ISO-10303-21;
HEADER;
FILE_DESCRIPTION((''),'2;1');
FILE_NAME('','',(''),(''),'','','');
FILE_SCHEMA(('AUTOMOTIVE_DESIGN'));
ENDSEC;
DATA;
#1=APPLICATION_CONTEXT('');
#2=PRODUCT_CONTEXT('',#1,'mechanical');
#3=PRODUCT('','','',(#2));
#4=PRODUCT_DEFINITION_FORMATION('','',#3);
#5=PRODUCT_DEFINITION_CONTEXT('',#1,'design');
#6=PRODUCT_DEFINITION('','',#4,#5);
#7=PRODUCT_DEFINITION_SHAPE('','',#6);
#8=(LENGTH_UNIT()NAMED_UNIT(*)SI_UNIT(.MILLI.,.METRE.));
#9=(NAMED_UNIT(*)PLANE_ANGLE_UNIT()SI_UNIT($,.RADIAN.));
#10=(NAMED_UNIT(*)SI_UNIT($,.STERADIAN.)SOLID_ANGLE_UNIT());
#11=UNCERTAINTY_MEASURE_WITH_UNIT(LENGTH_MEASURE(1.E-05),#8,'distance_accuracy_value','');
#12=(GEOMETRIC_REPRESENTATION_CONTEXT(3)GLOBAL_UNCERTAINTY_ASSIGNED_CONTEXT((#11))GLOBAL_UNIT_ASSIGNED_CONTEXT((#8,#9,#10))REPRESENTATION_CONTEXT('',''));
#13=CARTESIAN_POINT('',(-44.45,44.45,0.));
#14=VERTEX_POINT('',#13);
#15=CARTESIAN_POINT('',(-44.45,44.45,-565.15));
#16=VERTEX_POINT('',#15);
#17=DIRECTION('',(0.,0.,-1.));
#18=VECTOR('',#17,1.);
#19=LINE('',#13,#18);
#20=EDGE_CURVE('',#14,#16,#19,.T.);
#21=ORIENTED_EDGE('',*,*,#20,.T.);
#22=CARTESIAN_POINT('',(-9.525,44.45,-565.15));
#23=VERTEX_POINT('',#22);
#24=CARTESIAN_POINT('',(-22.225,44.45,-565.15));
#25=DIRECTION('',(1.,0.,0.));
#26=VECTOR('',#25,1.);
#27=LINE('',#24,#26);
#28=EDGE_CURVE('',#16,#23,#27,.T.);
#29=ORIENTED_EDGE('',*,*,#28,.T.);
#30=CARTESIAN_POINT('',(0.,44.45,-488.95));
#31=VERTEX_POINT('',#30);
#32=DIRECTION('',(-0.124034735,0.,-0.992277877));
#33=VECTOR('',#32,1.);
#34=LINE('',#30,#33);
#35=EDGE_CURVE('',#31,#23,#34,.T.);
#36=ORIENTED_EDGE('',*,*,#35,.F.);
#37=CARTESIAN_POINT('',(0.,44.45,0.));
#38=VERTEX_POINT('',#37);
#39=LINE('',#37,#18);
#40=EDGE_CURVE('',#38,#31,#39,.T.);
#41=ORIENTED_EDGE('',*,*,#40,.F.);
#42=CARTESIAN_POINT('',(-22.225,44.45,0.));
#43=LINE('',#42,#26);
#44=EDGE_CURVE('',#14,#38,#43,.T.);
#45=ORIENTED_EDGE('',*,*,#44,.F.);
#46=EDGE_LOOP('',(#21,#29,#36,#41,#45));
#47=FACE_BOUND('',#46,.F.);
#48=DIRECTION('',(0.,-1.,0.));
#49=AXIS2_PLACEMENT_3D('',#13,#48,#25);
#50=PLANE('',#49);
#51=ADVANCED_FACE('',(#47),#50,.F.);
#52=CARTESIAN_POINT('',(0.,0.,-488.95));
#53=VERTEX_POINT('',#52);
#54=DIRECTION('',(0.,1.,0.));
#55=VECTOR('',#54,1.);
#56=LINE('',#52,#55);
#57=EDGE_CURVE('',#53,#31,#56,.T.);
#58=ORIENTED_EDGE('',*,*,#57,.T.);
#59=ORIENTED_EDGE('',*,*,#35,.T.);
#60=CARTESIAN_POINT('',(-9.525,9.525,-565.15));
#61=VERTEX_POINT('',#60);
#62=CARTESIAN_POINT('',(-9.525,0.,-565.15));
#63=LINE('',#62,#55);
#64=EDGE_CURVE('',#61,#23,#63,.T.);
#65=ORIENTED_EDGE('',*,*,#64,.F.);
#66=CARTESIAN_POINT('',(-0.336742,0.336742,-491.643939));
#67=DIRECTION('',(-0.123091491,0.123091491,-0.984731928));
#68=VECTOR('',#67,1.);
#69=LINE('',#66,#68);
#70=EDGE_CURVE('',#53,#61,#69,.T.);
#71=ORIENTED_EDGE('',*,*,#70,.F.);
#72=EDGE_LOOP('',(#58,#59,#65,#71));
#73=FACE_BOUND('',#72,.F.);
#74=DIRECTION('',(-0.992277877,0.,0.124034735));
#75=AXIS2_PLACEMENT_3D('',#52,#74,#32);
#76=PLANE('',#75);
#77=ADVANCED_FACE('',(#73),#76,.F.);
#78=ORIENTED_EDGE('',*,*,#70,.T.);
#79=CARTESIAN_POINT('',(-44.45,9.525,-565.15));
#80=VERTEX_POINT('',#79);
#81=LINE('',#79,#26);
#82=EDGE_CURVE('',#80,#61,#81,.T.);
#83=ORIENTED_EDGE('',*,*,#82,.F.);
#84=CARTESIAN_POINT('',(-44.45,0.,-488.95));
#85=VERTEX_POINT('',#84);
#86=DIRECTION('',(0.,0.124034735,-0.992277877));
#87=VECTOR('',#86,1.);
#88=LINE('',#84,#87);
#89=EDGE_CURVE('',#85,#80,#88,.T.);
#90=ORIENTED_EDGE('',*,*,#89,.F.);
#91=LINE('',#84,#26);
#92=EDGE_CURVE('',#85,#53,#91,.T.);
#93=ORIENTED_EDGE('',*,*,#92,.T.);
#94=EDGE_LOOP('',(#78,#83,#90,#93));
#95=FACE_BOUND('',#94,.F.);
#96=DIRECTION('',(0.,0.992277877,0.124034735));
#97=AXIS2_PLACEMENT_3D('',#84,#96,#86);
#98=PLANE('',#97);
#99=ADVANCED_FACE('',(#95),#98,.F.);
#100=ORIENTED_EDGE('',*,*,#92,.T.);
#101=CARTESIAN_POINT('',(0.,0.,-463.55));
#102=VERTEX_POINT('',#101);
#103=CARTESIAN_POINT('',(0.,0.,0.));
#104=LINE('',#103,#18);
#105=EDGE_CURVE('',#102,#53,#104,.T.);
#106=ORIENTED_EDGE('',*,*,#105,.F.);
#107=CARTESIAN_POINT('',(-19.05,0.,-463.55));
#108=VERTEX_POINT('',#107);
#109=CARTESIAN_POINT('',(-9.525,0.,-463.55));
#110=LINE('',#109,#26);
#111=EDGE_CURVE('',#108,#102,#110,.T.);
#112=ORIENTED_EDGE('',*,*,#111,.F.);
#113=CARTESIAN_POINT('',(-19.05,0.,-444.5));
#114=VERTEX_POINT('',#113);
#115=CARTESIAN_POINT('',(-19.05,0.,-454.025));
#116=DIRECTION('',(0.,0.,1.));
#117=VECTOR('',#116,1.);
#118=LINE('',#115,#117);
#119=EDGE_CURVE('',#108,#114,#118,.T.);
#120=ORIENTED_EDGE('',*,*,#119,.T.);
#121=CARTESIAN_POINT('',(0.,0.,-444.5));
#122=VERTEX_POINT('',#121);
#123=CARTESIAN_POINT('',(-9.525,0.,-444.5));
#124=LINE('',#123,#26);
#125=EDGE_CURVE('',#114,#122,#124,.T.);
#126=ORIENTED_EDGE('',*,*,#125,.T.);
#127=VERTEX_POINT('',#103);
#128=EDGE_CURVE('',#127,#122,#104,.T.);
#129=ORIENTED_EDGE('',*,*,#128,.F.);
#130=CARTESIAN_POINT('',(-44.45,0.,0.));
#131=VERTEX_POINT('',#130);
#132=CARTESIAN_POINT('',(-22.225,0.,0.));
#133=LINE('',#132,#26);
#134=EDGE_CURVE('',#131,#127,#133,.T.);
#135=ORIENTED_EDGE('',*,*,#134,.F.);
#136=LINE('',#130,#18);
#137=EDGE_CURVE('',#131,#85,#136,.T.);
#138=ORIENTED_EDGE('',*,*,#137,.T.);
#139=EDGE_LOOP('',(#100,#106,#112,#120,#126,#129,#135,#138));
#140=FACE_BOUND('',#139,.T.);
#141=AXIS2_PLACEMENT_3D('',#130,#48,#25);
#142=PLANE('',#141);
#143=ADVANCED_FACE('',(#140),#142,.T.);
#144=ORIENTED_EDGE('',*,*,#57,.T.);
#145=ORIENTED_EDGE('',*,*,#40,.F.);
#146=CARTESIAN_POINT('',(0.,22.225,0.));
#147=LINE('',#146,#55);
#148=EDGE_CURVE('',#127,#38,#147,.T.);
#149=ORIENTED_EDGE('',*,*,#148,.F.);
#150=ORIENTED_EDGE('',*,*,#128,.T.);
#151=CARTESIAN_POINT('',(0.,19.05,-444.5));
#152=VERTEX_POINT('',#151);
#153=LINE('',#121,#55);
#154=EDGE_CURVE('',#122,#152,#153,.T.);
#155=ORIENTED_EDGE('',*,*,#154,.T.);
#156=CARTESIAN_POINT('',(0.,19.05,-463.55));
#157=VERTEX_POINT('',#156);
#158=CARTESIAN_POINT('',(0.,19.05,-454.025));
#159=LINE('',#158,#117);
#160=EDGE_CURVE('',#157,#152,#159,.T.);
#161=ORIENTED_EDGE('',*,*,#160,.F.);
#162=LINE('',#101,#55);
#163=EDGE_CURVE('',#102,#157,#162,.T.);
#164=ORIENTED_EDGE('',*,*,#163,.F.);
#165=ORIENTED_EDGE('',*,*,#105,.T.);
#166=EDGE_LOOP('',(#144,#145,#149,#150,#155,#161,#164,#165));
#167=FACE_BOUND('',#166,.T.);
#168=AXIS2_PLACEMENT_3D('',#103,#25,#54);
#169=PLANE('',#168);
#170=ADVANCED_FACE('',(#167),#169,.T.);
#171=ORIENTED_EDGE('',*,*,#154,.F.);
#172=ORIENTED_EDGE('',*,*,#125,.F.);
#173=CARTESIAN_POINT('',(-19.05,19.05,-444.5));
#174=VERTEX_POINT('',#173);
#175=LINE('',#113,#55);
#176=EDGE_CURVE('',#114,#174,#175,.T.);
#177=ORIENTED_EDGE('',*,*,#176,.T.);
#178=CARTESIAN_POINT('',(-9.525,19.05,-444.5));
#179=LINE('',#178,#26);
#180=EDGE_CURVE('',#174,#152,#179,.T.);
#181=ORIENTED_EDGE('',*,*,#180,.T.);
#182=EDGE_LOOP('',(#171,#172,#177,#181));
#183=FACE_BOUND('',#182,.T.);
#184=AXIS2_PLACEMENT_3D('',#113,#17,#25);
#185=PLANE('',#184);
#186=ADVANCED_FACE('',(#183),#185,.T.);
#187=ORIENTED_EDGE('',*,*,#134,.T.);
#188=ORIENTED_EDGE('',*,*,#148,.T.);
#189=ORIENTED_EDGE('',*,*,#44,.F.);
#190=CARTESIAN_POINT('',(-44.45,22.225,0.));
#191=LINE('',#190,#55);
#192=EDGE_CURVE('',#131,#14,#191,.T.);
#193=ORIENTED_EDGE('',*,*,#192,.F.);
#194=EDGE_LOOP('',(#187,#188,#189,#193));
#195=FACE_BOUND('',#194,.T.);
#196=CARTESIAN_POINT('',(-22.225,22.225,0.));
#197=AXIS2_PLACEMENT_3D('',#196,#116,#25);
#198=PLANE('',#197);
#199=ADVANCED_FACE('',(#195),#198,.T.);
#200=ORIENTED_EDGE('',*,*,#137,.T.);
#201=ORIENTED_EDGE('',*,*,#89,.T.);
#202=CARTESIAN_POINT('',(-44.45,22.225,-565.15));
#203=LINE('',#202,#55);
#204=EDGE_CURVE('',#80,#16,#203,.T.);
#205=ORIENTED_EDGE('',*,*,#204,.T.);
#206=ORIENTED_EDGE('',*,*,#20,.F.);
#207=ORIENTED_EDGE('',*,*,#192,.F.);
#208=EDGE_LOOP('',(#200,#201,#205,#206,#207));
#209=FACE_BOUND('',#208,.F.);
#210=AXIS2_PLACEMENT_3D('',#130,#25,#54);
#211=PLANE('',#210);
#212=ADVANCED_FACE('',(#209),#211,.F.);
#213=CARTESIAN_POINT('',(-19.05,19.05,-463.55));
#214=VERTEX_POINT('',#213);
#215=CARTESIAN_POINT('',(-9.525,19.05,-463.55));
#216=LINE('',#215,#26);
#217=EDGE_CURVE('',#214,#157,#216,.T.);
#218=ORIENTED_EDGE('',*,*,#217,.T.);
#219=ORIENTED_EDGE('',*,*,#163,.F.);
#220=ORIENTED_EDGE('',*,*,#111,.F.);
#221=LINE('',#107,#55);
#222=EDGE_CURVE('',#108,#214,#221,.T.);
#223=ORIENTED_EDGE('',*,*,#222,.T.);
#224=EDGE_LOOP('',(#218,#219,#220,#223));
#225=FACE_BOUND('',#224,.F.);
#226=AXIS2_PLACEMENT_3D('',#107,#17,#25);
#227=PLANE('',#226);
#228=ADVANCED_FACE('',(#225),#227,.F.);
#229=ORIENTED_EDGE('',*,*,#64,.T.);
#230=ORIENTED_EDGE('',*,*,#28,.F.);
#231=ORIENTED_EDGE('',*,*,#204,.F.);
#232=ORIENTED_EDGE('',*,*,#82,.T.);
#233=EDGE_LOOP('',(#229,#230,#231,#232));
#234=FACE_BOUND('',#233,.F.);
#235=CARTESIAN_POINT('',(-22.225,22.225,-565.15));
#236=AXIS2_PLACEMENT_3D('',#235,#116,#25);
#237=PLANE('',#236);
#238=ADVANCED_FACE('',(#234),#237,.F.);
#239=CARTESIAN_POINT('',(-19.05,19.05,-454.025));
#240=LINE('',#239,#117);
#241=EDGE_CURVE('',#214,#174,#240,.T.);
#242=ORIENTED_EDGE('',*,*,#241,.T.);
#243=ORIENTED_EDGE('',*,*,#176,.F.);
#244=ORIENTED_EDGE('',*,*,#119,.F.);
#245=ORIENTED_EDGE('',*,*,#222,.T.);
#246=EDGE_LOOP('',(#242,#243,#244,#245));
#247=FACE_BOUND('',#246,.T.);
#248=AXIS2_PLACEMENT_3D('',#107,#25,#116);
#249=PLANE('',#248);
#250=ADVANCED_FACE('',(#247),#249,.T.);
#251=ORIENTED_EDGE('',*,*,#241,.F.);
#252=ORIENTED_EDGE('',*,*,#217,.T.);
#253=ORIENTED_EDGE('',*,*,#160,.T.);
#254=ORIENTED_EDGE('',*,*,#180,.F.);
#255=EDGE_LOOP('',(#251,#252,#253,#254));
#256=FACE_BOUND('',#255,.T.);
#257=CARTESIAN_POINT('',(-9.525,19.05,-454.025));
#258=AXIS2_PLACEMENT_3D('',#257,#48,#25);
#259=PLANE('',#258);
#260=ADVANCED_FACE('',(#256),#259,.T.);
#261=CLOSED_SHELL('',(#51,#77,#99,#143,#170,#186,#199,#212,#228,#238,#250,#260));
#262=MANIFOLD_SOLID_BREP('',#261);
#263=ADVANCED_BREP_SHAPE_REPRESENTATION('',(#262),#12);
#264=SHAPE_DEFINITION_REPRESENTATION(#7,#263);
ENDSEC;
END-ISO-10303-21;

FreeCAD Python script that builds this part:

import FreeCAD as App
import Part
import Sketcher

V = App.Vector
Q = App.Units.Quantity


def add_polygon(sketch, points):
    """Adds a closed chain of lines whose ends are joined by coincident constraints."""
    first, n = sketch.GeometryCount, len(points)
    for a, b in zip(points, points[1:] + points[:1]):
        sketch.addGeometry(Part.LineSegment(App.Vector(*a, 0), App.Vector(*b, 0)), False)
    for i in range(n):
        sketch.addConstraint(Sketcher.Constraint("Coincident", first + i, 2, first + (i + 1) % n, 1))

doc = App.newDocument("Part")
params = doc.addObject("Spreadsheet::Sheet", "Params")
for row, (alias, value) in enumerate([
    ("sketch1_width", "1.75 in"),
    ("pad1_length", "22.25 in"),
    ("sketch2_height", "3 in"),
    ("sketch2_width", "0.375 in"),
    ("sketch3_height", "3 in"),
    ("sketch3_width", "0.375 in"),
    ("sketch4_width", "0.75 in"),
    ("pocket3_length", "0.75 in"),
], start=1):
    params.set(f"A{row}", alias)
    params.set(f"B{row}", "=" + value)
    params.setAlias(f"B{row}", alias)

body = doc.addObject("PartDesign::Body", "Body")

# Sketch on XY plane
sketch1 = doc.addObject("Sketcher::SketchObject", "Sketch")
body.addObject(sketch1)
sketch1.AttachmentSupport = (doc.XY_Plane, [""])
sketch1.MapMode = "FlatFace"
add_polygon(sketch1, [(-44, 44), (-44, 0), (0, 0), (0, 44)])  # lines 0-3
sketch1.addConstraint([
    Sketcher.Constraint("Vertical", 0),
    Sketcher.Constraint("Horizontal", 1),
    Sketcher.Constraint("Vertical", 2),
    Sketcher.Constraint("Horizontal", 3),
    Sketcher.Constraint("Coincident", 1, 2, -1, 1),
    Sketcher.Constraint("Equal", 3, 0),
    Sketcher.Constraint("DistanceX", 1, 1, 1, 2, Q("1.75 in")),
])
sketch1.setExpression("Constraints[10]", "Params.sketch1_width")
pad1 = doc.addObject("PartDesign::Pad", "Pad")
body.addObject(pad1)
pad1.Profile = sketch1
pad1.setExpression("Length", "Params.pad1_length")
pad1.Reversed = True

# Sketch on XZ plane
sketch2 = doc.addObject("Sketcher::SketchObject", "Sketch001")
body.addObject(sketch2)
sketch2.AttachmentSupport = (doc.XZ_Plane, [""])
sketch2.MapMode = "FlatFace"
add_polygon(sketch2, [(-10, -565), (0, -565), (0, -489)])  # lines 0-2
sketch2.addConstraint([
    Sketcher.Constraint("Horizontal", 0),
    Sketcher.Constraint("Vertical", 1),
    Sketcher.Constraint("PointOnObject", 0, 2, -2),
    Sketcher.Constraint("DistanceY", 1, 1, 1, 2, Q("3 in")),
    Sketcher.Constraint("DistanceX", 0, 1, 0, 2, Q("0.375 in")),
    Sketcher.Constraint("DistanceY", 0, 2, -1, 1, Q("22.25 in")),
])
sketch2.setExpression("Constraints[6]", "Params.sketch2_height")
sketch2.setExpression("Constraints[7]", "Params.sketch2_width")
pocket1 = doc.addObject("PartDesign::Pocket", "Pocket")
body.addObject(pocket1)
pocket1.Profile = sketch2
pocket1.Type = "ThroughAll"

# Sketch on YZ plane
sketch3 = doc.addObject("Sketcher::SketchObject", "Sketch002")
body.addObject(sketch3)
sketch3.AttachmentSupport = (doc.YZ_Plane, [""])
sketch3.MapMode = "FlatFace"
sketch3.AttachmentOffset = App.Placement(V(0, 0, -1.75 * 25.4), App.Rotation())
add_polygon(sketch3, [(0, -565), (0, -489), (10, -565)])  # lines 0-2
sketch3.addConstraint([
    Sketcher.Constraint("Vertical", 0),
    Sketcher.Constraint("Horizontal", 2),
    Sketcher.Constraint("PointOnObject", 0, 2, -2),
    Sketcher.Constraint("DistanceY", 0, 1, 0, 2, Q("3 in")),
    Sketcher.Constraint("DistanceX", 2, 2, 2, 1, Q("0.375 in")),
    Sketcher.Constraint("DistanceY", 0, 2, -1, 1, Q("19.25 in")),
])
sketch3.setExpression("Constraints[6]", "Params.sketch3_height")
sketch3.setExpression("Constraints[7]", "Params.sketch3_width")
pocket2 = doc.addObject("PartDesign::Pocket", "Pocket001")
body.addObject(pocket2)
pocket2.Profile = sketch3
pocket2.Type = "ThroughAll"
pocket2.Reversed = True

# Sketch on XZ plane
sketch4 = doc.addObject("Sketcher::SketchObject", "Sketch003")
body.addObject(sketch4)
sketch4.AttachmentSupport = (doc.XZ_Plane, [""])
sketch4.MapMode = "FlatFace"
add_polygon(sketch4, [(-19, -444), (-19, -464), (0, -464), (0, -444)])  # lines 0-3
sketch4.addConstraint([
    Sketcher.Constraint("Vertical", 0),
    Sketcher.Constraint("Horizontal", 1),
    Sketcher.Constraint("Vertical", 2),
    Sketcher.Constraint("Horizontal", 3),
    Sketcher.Constraint("PointOnObject", 1, 2, -2),
    Sketcher.Constraint("Equal", 3, 0),
    Sketcher.Constraint("DistanceX", 1, 1, 1, 2, Q("0.75 in")),
    Sketcher.Constraint("DistanceY", 2, 2, -1, 1, Q("17.5 in")),
])
sketch4.setExpression("Constraints[10]", "Params.sketch4_width")
pocket3 = doc.addObject("PartDesign::Pocket", "Pocket002")
body.addObject(pocket3)
pocket3.Profile = sketch4
pocket3.setExpression("Length", "Params.pocket3_length")

doc.recompute()
